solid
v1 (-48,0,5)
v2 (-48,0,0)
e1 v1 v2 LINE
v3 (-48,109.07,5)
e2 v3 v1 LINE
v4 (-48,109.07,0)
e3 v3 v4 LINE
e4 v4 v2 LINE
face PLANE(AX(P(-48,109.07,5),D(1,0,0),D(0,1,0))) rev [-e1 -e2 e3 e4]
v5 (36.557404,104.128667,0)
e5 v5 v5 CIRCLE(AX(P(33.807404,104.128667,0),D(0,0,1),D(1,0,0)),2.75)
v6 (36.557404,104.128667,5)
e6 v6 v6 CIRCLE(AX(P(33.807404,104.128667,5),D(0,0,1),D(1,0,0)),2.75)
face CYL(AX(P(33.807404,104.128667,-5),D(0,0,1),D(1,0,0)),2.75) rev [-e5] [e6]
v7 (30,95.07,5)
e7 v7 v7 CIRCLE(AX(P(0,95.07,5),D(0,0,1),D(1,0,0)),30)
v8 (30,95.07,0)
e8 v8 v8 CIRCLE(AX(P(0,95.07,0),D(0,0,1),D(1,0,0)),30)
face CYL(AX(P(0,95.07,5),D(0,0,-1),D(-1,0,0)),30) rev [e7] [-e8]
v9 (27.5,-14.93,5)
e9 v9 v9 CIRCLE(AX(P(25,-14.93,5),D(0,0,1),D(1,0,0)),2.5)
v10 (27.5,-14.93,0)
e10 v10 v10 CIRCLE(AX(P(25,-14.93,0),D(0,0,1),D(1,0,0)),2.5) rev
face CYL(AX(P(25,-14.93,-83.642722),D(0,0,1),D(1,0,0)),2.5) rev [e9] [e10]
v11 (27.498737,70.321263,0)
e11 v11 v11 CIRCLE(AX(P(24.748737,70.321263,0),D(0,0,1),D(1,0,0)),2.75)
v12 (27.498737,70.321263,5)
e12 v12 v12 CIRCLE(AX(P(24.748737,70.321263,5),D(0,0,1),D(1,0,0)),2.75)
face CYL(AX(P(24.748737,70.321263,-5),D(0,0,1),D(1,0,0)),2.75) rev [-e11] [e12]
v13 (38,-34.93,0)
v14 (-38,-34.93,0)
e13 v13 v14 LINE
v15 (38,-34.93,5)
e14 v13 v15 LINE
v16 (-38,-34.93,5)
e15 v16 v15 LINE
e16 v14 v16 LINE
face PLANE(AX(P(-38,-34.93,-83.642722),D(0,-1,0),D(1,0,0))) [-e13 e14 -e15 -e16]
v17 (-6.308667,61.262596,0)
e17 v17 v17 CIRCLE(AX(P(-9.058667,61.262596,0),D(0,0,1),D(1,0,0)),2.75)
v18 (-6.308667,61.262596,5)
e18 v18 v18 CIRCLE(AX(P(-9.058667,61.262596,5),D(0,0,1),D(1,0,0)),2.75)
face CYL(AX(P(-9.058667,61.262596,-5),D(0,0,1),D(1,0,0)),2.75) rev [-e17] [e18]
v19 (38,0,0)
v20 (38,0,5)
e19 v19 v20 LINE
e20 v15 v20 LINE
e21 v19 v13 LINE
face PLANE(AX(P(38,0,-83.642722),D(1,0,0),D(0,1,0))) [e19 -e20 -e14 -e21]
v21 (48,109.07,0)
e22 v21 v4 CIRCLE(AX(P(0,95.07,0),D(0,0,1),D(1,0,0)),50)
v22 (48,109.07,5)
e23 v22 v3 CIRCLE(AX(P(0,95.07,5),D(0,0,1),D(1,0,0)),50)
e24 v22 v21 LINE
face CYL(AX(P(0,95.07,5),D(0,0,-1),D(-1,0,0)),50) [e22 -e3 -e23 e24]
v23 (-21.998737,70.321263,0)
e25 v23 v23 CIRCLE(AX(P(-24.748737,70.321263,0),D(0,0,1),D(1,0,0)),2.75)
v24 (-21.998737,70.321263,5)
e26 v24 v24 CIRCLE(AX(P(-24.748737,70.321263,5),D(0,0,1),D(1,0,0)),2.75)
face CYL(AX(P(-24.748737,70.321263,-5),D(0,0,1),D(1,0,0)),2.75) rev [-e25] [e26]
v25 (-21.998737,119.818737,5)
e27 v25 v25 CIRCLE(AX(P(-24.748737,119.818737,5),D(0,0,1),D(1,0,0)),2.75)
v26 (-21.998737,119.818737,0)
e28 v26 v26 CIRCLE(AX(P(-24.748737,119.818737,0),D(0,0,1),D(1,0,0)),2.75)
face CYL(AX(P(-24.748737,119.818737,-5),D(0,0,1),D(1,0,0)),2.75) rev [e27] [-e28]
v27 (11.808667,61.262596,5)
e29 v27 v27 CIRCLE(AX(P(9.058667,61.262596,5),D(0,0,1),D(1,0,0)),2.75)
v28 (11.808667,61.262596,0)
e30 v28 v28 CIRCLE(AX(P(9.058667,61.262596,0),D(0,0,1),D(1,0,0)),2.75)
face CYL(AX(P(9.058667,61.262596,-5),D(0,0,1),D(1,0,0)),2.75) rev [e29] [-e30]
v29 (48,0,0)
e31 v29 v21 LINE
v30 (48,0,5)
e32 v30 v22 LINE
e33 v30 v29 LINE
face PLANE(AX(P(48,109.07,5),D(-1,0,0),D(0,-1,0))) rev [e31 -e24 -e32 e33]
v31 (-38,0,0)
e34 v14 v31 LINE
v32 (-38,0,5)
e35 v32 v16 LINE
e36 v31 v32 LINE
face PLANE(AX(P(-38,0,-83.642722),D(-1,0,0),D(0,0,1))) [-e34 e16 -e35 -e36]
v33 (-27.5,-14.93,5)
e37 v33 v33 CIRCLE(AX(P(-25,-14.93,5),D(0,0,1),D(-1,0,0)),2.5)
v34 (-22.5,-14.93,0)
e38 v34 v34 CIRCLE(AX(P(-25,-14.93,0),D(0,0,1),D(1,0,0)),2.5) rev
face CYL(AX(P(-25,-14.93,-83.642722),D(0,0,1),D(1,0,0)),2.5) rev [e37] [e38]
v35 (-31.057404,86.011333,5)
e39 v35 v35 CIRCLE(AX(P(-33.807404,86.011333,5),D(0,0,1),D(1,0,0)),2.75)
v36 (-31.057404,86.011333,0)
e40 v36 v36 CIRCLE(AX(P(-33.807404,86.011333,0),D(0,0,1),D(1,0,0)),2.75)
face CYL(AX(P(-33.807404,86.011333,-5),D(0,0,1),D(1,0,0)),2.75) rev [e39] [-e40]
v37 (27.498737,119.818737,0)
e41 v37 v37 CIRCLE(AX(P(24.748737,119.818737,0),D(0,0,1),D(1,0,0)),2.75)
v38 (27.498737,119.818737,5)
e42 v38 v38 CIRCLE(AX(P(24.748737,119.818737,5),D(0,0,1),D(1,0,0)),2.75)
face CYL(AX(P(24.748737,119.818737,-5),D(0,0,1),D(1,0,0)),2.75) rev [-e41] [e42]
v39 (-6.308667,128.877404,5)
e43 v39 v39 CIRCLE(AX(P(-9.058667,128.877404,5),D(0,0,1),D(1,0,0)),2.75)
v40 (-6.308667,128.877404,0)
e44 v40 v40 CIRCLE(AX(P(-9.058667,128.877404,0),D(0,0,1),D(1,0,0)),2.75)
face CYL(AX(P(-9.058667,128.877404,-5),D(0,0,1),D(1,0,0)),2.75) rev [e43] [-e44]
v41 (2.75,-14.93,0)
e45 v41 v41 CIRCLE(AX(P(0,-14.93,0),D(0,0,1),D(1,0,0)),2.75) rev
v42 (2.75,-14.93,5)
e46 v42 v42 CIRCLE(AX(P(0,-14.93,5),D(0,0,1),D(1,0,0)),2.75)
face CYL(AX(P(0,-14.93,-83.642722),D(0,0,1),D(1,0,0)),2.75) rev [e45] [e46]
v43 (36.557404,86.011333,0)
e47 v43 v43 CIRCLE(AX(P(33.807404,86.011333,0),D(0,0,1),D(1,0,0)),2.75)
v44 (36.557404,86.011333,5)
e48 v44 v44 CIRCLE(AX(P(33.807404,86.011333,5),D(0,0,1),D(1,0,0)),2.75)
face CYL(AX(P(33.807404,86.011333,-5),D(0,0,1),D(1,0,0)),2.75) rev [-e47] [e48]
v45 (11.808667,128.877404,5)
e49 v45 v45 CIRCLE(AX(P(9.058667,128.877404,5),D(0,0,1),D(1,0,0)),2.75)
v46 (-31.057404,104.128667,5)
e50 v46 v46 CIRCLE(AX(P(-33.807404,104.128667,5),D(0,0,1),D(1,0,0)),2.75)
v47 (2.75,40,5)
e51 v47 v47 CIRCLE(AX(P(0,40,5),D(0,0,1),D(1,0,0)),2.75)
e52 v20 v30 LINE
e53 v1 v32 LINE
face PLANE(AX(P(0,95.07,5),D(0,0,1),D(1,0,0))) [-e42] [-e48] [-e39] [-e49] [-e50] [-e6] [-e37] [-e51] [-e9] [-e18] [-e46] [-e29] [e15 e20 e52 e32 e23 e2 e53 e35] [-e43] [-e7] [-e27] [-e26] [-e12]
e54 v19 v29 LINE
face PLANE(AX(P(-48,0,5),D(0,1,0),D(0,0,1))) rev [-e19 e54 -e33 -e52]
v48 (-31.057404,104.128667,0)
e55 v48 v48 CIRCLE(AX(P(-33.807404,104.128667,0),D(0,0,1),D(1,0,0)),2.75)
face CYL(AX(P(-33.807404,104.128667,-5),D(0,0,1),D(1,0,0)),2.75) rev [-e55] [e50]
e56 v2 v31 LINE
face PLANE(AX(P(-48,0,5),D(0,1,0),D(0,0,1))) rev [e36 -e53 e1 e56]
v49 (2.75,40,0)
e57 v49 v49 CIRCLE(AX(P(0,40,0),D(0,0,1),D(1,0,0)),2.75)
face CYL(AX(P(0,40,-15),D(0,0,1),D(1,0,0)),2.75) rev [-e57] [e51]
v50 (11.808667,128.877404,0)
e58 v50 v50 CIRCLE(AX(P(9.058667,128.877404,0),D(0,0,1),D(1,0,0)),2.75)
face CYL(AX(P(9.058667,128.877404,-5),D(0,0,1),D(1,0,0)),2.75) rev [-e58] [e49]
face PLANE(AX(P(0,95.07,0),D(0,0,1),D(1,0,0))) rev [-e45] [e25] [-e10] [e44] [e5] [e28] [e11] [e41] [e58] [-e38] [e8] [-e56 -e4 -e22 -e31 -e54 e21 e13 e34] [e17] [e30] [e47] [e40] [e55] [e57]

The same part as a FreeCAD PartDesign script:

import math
import FreeCAD as App
import Part
import Sketcher


def add_polygon(sketch, points):
    """Adds a closed chain of lines whose ends are joined by coincident constraints."""
    first, n = sketch.GeometryCount, len(points)
    for a, b in zip(points, points[1:] + points[:1]):
        sketch.addGeometry(Part.LineSegment(App.Vector(*a, 0), App.Vector(*b, 0)), False)
    for i in range(n):
        sketch.addConstraint(Sketcher.Constraint("Coincident", first + i, 2, first + (i + 1) % n, 1))

doc = App.newDocument("Part")
body = doc.addObject("PartDesign::Body", "Body")

sketch1 = doc.addObject("Sketcher::SketchObject", "Sketch")
body.addObject(sketch1)
sketch1.AttachmentSupport = (doc.XY_Plane, [""])
sketch1.MapMode = "FlatFace"
sketch1.addGeometry([
    Part.LineSegment(App.Vector(-48, 109.07, 0), App.Vector(-48, 0, 0)),
    Part.LineSegment(App.Vector(-48, 0, 0), App.Vector(48, 0, 0)),
    Part.LineSegment(App.Vector(48, 0, 0), App.Vector(48, 109.07, 0)),
    Part.ArcOfCircle(Part.Circle(App.Vector(0, 95.07, 0), App.Vector(0, 0, 1), 50), math.radians(16.260205), math.radians(163.739795)),
    Part.Circle(App.Vector(0, 95.07, 0), App.Vector(0, 0, 1), 30),
], False)
sketch1.addConstraint([
    Sketcher.Constraint("Coincident", 0, 2, 1, 1),
    Sketcher.Constraint("Coincident", 1, 2, 2, 1),
    Sketcher.Constraint("Coincident", 2, 2, 3, 1),
    Sketcher.Constraint("Coincident", 3, 2, 0, 1),
    Sketcher.Constraint("Vertical", 0),
    Sketcher.Constraint("Horizontal", 1),
    Sketcher.Constraint("Vertical", 2),
    Sketcher.Constraint("Coincident", 4, 3, 3, 3),
    Sketcher.Constraint("Symmetric", 0, 2, 1, 2, -1, 1),
    Sketcher.Constraint("PointOnObject", 3, 3, -2),
    Sketcher.Constraint("Diameter", 4, 60.0),
    Sketcher.Constraint("Radius", 3, 50.0),
    Sketcher.Constraint("DistanceX", 1, 1, 1, 2, 96.0),
    Sketcher.Constraint("DistanceY", 0, 2, 0, 1, 109.07),
])
pad1 = doc.addObject("PartDesign::Pad", "Pad")
body.addObject(pad1)
pad1.Profile = sketch1
pad1.Length = 5

sketch2 = doc.addObject("Sketcher::SketchObject", "Sketch001")
body.addObject(sketch2)
sketch2.AttachmentSupport = (doc.XY_Plane, [""])
sketch2.MapMode = "FlatFace"
sketch2.AttachmentOffset = App.Placement(App.Vector(0, 0, 5), App.Rotation())
sketch2.addGeometry(Part.Circle(App.Vector(0, 40, 0), App.Vector(0, 0, 1), 2.75), False)
sketch2.addConstraint([
    Sketcher.Constraint("PointOnObject", 0, 3, -2),
    Sketcher.Constraint("Diameter", 0, 5.5),
    Sketcher.Constraint("DistanceY", -1, 1, 0, 3, 40.0),
])
pocket1 = doc.addObject("PartDesign::Pocket", "Pocket")
body.addObject(pocket1)
pocket1.Profile = sketch2
pocket1.Length = 20

sketch3 = doc.addObject("Sketcher::SketchObject", "Sketch002")
body.addObject(sketch3)
sketch3.AttachmentSupport = (doc.XY_Plane, [""])
sketch3.MapMode = "FlatFace"
sketch3.AttachmentOffset = App.Placement(App.Vector(0, 0, 5), App.Rotation())
sketch3.addGeometry([
    Part.Circle(App.Vector(9.058667, 128.877404, 0), App.Vector(0, 0, 1), 2.75),
    Part.Circle(App.Vector(24.748737, 119.818737, 0), App.Vector(0, 0, 1), 2.75),
    Part.Circle(App.Vector(33.807404, 104.128667, 0), App.Vector(0, 0, 1), 2.75),
    Part.Circle(App.Vector(33.807404, 86.011333, 0), App.Vector(0, 0, 1), 2.75),
    Part.Circle(App.Vector(24.748737, 70.321263, 0), App.Vector(0, 0, 1), 2.75),
    Part.Circle(App.Vector(9.058667, 61.262596, 0), App.Vector(0, 0, 1), 2.75),
    Part.Circle(App.Vector(-9.058667, 61.262596, 0), App.Vector(0, 0, 1), 2.75),
    Part.Circle(App.Vector(-24.748737, 70.321263, 0), App.Vector(0, 0, 1), 2.75),
    Part.Circle(App.Vector(-33.807404, 86.011333, 0), App.Vector(0, 0, 1), 2.75),
    Part.Circle(App.Vector(-33.807404, 104.128667, 0), App.Vector(0, 0, 1), 2.75),
    Part.Circle(App.Vector(-24.748737, 119.818737, 0), App.Vector(0, 0, 1), 2.75),
    Part.Circle(App.Vector(-9.058667, 128.877404, 0), App.Vector(0, 0, 1), 2.75),
], False)
sketch3.addConstraint([
    Sketcher.Constraint("Equal", 0, 1),
    Sketcher.Constraint("Equal", 1, 2),
    Sketcher.Constraint("Equal", 2, 3),
    Sketcher.Constraint("Equal", 3, 4),
    Sketcher.Constraint("Equal", 4, 5),
    Sketcher.Constraint("Equal", 5, 6),
    Sketcher.Constraint("Equal", 6, 7),
    Sketcher.Constraint("Equal", 7, 8),
    Sketcher.Constraint("Equal", 8, 9),
    Sketcher.Constraint("Equal", 9, 10),
    Sketcher.Constraint("Equal", 10, 11),
    Sketcher.Constraint("Symmetric", 5, 3, 6, 3, -2),
    Sketcher.Constraint("Symmetric", 4, 3, 7, 3, -2),
    Sketcher.Constraint("Symmetric", 3, 3, 8, 3, -2),
    Sketcher.Constraint("Symmetric", 2, 3, 9, 3, -2),
    Sketcher.Constraint("Symmetric", 1, 3, 10, 3, -2),
    Sketcher.Constraint("Symmetric", 0, 3, 11, 3, -2),
    Sketcher.Constraint("Vertical", 2, 3, 3, 3),
    Sketcher.Constraint("Vertical", 1, 3, 4, 3),
    Sketcher.Constraint("Vertical", 0, 3, 5, 3),
    Sketcher.Constraint("Diameter", 0, 5.5),
    Sketcher.Constraint("DistanceX", 0, 3, 1, 3, 15.690071),
    Sketcher.Constraint("DistanceY", 2, 3, 1, 3, 15.690071),
    Sketcher.Constraint("DistanceY", 3, 3, 0, 3, 42.86607),
    Sketcher.Constraint("DistanceY", 4, 3, 3, 3, 15.690071),
    Sketcher.Constraint("DistanceY", 5, 3, 2, 3, 42.86607),
    Sketcher.Constraint("DistanceX", 6, 3, 3, 3, 42.86607),
    Sketcher.Constraint("DistanceX", -1, 1, 0, 3, 9.058667),
    Sketcher.Constraint("DistanceY", -1, 1, 0, 3, 128.877404),
    Sketcher.Constraint("DistanceY", -1, 1, 1, 3, 119.818737),
])
pocket2 = doc.addObject("PartDesign::Pocket", "Pocket001")
body.addObject(pocket2)
pocket2.Profile = sketch3
pocket2.Length = 10

sketch4 = doc.addObject("Sketcher::SketchObject", "Sketch003")
body.addObject(sketch4)
sketch4.AttachmentSupport = (doc.XY_Plane, [""])
sketch4.MapMode = "FlatFace"
sketch4.AttachmentOffset = App.Placement(App.Vector(0, 0, 5), App.Rotation())
add_polygon(sketch4, [(-38, 0), (-38, -34.93), (38, -34.93), (38, 0)])
sketch4.addGeometry(Part.Circle(App.Vector(-25, -14.93, 0), App.Vector(0, 0, 1), 2.5), False)
sketch4.addGeometry(Part.Circle(App.Vector(0, -14.93, 0), App.Vector(0, 0, 1), 2.75), False)
sketch4.addGeometry(Part.Circle(App.Vector(25, -14.93, 0), App.Vector(0, 0, 1), 2.5), False)
sketch4.addConstraint([
    Sketcher.Constraint("Vertical", 0),
    Sketcher.Constraint("Horizontal", 1),
    Sketcher.Constraint("Vertical", 2),
    Sketcher.Constraint("Horizontal", 3),
    Sketcher.Constraint("Equal", 4, 6),
    Sketcher.Constraint("Symmetric", 2, 2, 3, 2, -1, 1),
    Sketcher.Constraint("Symmetric", 4, 3, 6, 3, -2),
    Sketcher.Constraint("PointOnObject", 5, 3, -2),
    Sketcher.Constraint("Horizontal", 4, 3, 5, 3),
    Sketcher.Constraint("Diameter", 4, 5.0),
    Sketcher.Constraint("Diameter", 5, 5.5),
    Sketcher.Constraint("DistanceX", 1, 1, 1, 2, 76.0),
    Sketcher.Constraint("DistanceX", 4, 3, -1, 1, 25.0),
    Sketcher.Constraint("DistanceY", 0, 2, 4, 3, 20.0),
    Sketcher.Constraint("DistanceY", 0, 2, 0, 1, 34.93),
])
pad2 = doc.addObject("PartDesign::Pad", "Pad001")
body.addObject(pad2)
pad2.Profile = sketch4
pad2.Length = 5
pad2.Reversed = True

doc.recompute()
